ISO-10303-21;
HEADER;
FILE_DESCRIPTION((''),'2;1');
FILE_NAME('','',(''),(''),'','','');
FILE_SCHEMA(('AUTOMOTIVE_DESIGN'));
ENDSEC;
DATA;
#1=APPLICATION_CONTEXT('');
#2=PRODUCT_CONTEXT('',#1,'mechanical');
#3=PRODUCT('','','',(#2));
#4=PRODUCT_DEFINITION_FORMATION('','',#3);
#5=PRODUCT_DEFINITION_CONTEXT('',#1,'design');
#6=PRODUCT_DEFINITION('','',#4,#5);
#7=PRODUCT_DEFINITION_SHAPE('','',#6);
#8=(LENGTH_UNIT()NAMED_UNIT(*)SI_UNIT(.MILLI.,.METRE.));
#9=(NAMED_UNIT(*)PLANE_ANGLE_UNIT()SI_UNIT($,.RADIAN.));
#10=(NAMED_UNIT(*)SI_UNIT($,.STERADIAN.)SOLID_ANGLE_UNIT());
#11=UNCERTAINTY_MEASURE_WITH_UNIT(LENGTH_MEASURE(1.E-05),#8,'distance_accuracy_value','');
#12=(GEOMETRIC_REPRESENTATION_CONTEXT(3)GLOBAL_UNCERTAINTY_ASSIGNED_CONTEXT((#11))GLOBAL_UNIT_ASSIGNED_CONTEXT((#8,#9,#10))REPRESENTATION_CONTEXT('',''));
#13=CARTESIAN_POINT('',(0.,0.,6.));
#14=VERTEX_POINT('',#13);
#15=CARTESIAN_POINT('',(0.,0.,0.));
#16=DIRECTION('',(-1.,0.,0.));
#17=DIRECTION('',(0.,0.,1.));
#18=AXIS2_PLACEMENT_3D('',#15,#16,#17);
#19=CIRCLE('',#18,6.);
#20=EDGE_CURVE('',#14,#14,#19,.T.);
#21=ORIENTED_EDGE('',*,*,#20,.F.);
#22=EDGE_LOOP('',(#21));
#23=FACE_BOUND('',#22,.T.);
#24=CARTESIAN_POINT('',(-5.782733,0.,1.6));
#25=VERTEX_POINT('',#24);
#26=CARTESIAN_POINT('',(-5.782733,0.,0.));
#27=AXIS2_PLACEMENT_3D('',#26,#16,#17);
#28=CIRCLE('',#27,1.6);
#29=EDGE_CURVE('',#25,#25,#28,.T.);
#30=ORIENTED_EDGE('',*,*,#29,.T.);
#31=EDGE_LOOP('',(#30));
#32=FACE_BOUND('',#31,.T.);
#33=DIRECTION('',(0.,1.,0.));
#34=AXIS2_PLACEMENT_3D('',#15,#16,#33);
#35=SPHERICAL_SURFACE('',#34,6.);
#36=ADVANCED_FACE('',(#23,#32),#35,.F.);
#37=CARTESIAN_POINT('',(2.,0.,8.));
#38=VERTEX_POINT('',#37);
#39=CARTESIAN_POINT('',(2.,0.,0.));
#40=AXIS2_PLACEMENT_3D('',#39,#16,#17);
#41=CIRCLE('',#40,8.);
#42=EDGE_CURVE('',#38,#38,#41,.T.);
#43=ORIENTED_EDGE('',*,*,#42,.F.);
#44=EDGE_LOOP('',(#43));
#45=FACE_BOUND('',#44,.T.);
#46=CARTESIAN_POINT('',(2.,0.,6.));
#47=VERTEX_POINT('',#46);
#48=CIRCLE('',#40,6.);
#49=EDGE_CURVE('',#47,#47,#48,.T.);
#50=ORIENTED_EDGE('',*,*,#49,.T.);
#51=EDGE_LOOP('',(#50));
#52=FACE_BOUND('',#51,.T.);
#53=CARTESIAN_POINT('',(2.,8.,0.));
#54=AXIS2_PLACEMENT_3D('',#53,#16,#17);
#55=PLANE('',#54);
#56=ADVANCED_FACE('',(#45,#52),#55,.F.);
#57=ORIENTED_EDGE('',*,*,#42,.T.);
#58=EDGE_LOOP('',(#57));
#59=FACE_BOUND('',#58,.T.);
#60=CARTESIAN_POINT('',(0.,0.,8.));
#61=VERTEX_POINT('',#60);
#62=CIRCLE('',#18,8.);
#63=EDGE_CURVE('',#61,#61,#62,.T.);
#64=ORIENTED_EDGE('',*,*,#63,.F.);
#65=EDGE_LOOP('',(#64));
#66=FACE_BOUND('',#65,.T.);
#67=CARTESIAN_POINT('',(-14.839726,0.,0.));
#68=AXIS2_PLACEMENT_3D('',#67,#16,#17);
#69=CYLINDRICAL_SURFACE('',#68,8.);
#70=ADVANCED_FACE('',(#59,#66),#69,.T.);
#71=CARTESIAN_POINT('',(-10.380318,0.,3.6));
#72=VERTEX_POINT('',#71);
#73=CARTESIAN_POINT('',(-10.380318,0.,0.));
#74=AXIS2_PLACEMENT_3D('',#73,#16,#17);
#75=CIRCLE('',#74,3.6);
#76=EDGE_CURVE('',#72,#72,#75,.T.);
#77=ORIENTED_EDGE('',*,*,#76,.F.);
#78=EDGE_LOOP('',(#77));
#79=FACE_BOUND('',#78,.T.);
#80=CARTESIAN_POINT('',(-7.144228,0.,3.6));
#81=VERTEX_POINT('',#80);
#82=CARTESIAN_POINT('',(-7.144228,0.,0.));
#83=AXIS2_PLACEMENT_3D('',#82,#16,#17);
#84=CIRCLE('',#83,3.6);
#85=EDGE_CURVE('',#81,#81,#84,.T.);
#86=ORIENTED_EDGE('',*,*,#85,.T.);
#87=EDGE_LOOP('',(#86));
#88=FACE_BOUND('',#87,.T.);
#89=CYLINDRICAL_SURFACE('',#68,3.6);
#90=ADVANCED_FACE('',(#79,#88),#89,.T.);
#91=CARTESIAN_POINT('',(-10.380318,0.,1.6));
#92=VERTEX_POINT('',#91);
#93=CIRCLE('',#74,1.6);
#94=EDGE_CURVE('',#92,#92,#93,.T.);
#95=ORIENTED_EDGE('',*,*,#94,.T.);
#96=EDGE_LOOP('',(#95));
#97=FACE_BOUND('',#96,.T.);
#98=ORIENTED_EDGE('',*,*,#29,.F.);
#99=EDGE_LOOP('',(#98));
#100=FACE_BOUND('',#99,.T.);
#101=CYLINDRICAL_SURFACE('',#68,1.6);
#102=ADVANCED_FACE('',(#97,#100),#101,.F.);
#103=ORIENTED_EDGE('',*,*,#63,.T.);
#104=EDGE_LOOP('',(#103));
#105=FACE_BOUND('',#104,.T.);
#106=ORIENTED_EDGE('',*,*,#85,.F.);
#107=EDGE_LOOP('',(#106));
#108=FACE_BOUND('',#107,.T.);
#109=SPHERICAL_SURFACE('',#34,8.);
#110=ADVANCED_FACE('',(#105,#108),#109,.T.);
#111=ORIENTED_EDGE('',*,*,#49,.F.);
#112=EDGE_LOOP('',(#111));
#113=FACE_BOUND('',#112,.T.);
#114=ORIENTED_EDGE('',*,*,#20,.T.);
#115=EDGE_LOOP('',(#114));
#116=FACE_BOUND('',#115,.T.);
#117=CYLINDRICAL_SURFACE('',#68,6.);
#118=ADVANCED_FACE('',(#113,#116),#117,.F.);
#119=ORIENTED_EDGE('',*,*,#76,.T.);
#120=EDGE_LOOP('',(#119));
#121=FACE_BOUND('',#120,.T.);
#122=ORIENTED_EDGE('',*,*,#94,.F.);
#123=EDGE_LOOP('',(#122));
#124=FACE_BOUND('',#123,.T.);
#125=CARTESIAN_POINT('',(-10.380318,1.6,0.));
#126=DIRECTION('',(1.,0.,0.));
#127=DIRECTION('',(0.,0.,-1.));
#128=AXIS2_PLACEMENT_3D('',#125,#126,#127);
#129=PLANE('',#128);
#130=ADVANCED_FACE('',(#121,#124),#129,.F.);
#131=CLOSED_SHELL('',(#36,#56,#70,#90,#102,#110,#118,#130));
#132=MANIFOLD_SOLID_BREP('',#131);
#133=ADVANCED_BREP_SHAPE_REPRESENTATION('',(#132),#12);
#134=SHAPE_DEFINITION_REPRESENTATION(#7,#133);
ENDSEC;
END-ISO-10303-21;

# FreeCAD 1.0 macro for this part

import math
import FreeCAD as App
import Part
import Sketcher
from FreeCAD import Vector

doc = App.newDocument("Part")
params = doc.addObject("Spreadsheet::Sheet", "Params")
for row, (alias, value) in enumerate([
    ("sketch1_radius", "6 mm"),
    ("sketch1_radius2", "8 mm"),
    ("revolution_angle", "360 deg"),
], start=1):
    params.set(f"A{row}", alias)
    params.set(f"B{row}", "=" + value)
    params.setAlias(f"B{row}", alias)

body = doc.addObject("PartDesign::Body", "Body")

sketch1 = body.newObject("Sketcher::SketchObject", "Sketch")
sketch1.AttachmentSupport = (doc.getObject("XY_Plane"), [""])
sketch1.MapMode = "FlatFace"
sketch1.addGeometry([
    Part.LineSegment(Vector(-10.4, 1.6, 0), Vector(-5.8, 1.6, 0)),
    Part.ArcOfCircle(Part.Circle(Vector(0, 0, 0), Vector(0, 0, 1), 6), math.radians(90), math.radians(165)),
    Part.LineSegment(Vector(0, 6, 0), Vector(2, 6, 0)),
    Part.LineSegment(Vector(2, 6, 0), Vector(2, 8, 0)),
    Part.LineSegment(Vector(2, 8, 0), Vector(0, 8, 0)),
    Part.ArcOfCircle(Part.Circle(Vector(0, 0, 0), Vector(0, 0, 1), 8), math.radians(90), math.radians(153)),
    Part.LineSegment(Vector(-7.1, 3.6, 0), Vector(-10.4, 3.6, 0)),
    Part.LineSegment(Vector(-10.4, 3.6, 0), Vector(-10.4, 1.6, 0)),
], False)
sketch1.addConstraint([
    Sketcher.Constraint("Coincident", 0, 2, 1, 2),
    Sketcher.Constraint("Tangent", 1, 1, 2, 1),
    Sketcher.Constraint("Coincident", 2, 2, 3, 1),
    Sketcher.Constraint("Coincident", 3, 2, 4, 1),
    Sketcher.Constraint("Tangent", 4, 2, 5, 1),
    Sketcher.Constraint("Coincident", 5, 2, 6, 1),
    Sketcher.Constraint("Coincident", 6, 2, 7, 1),
    Sketcher.Constraint("Coincident", 7, 2, 0, 1),
    Sketcher.Constraint("Horizontal", 0),
    Sketcher.Constraint("Horizontal", 2),
    Sketcher.Constraint("Vertical", 3),
    Sketcher.Constraint("Horizontal", 4),
    Sketcher.Constraint("Horizontal", 6),
    Sketcher.Constraint("Vertical", 7),
    Sketcher.Constraint("Coincident", 1, 3, -1, 1),
    Sketcher.Constraint("Coincident", 5, 3, -1, 1),
    Sketcher.Constraint("Equal", 4, 3),
    Sketcher.Constraint("Equal", 3, 7),
    Sketcher.Constraint("Radius", 1, 6.0),
    Sketcher.Constraint("Radius", 5, 8.0),
    Sketcher.Constraint("DistanceY", -1, 1, 0, 2, 1.6),
    Sketcher.Constraint("DistanceX", 6, 2, 6, 1, 3.236089),
])
sketch1.setExpression("Constraints[18]", "Params.sketch1_radius")
sketch1.setExpression("Constraints[19]", "Params.sketch1_radius2")
revolution = body.newObject("PartDesign::Revolution", "Revolution")
revolution.Profile = sketch1
revolution.ReferenceAxis = (sketch1, ["H_Axis"])
revolution.setExpression("Angle", "Params.revolution_angle")

doc.recompute()
